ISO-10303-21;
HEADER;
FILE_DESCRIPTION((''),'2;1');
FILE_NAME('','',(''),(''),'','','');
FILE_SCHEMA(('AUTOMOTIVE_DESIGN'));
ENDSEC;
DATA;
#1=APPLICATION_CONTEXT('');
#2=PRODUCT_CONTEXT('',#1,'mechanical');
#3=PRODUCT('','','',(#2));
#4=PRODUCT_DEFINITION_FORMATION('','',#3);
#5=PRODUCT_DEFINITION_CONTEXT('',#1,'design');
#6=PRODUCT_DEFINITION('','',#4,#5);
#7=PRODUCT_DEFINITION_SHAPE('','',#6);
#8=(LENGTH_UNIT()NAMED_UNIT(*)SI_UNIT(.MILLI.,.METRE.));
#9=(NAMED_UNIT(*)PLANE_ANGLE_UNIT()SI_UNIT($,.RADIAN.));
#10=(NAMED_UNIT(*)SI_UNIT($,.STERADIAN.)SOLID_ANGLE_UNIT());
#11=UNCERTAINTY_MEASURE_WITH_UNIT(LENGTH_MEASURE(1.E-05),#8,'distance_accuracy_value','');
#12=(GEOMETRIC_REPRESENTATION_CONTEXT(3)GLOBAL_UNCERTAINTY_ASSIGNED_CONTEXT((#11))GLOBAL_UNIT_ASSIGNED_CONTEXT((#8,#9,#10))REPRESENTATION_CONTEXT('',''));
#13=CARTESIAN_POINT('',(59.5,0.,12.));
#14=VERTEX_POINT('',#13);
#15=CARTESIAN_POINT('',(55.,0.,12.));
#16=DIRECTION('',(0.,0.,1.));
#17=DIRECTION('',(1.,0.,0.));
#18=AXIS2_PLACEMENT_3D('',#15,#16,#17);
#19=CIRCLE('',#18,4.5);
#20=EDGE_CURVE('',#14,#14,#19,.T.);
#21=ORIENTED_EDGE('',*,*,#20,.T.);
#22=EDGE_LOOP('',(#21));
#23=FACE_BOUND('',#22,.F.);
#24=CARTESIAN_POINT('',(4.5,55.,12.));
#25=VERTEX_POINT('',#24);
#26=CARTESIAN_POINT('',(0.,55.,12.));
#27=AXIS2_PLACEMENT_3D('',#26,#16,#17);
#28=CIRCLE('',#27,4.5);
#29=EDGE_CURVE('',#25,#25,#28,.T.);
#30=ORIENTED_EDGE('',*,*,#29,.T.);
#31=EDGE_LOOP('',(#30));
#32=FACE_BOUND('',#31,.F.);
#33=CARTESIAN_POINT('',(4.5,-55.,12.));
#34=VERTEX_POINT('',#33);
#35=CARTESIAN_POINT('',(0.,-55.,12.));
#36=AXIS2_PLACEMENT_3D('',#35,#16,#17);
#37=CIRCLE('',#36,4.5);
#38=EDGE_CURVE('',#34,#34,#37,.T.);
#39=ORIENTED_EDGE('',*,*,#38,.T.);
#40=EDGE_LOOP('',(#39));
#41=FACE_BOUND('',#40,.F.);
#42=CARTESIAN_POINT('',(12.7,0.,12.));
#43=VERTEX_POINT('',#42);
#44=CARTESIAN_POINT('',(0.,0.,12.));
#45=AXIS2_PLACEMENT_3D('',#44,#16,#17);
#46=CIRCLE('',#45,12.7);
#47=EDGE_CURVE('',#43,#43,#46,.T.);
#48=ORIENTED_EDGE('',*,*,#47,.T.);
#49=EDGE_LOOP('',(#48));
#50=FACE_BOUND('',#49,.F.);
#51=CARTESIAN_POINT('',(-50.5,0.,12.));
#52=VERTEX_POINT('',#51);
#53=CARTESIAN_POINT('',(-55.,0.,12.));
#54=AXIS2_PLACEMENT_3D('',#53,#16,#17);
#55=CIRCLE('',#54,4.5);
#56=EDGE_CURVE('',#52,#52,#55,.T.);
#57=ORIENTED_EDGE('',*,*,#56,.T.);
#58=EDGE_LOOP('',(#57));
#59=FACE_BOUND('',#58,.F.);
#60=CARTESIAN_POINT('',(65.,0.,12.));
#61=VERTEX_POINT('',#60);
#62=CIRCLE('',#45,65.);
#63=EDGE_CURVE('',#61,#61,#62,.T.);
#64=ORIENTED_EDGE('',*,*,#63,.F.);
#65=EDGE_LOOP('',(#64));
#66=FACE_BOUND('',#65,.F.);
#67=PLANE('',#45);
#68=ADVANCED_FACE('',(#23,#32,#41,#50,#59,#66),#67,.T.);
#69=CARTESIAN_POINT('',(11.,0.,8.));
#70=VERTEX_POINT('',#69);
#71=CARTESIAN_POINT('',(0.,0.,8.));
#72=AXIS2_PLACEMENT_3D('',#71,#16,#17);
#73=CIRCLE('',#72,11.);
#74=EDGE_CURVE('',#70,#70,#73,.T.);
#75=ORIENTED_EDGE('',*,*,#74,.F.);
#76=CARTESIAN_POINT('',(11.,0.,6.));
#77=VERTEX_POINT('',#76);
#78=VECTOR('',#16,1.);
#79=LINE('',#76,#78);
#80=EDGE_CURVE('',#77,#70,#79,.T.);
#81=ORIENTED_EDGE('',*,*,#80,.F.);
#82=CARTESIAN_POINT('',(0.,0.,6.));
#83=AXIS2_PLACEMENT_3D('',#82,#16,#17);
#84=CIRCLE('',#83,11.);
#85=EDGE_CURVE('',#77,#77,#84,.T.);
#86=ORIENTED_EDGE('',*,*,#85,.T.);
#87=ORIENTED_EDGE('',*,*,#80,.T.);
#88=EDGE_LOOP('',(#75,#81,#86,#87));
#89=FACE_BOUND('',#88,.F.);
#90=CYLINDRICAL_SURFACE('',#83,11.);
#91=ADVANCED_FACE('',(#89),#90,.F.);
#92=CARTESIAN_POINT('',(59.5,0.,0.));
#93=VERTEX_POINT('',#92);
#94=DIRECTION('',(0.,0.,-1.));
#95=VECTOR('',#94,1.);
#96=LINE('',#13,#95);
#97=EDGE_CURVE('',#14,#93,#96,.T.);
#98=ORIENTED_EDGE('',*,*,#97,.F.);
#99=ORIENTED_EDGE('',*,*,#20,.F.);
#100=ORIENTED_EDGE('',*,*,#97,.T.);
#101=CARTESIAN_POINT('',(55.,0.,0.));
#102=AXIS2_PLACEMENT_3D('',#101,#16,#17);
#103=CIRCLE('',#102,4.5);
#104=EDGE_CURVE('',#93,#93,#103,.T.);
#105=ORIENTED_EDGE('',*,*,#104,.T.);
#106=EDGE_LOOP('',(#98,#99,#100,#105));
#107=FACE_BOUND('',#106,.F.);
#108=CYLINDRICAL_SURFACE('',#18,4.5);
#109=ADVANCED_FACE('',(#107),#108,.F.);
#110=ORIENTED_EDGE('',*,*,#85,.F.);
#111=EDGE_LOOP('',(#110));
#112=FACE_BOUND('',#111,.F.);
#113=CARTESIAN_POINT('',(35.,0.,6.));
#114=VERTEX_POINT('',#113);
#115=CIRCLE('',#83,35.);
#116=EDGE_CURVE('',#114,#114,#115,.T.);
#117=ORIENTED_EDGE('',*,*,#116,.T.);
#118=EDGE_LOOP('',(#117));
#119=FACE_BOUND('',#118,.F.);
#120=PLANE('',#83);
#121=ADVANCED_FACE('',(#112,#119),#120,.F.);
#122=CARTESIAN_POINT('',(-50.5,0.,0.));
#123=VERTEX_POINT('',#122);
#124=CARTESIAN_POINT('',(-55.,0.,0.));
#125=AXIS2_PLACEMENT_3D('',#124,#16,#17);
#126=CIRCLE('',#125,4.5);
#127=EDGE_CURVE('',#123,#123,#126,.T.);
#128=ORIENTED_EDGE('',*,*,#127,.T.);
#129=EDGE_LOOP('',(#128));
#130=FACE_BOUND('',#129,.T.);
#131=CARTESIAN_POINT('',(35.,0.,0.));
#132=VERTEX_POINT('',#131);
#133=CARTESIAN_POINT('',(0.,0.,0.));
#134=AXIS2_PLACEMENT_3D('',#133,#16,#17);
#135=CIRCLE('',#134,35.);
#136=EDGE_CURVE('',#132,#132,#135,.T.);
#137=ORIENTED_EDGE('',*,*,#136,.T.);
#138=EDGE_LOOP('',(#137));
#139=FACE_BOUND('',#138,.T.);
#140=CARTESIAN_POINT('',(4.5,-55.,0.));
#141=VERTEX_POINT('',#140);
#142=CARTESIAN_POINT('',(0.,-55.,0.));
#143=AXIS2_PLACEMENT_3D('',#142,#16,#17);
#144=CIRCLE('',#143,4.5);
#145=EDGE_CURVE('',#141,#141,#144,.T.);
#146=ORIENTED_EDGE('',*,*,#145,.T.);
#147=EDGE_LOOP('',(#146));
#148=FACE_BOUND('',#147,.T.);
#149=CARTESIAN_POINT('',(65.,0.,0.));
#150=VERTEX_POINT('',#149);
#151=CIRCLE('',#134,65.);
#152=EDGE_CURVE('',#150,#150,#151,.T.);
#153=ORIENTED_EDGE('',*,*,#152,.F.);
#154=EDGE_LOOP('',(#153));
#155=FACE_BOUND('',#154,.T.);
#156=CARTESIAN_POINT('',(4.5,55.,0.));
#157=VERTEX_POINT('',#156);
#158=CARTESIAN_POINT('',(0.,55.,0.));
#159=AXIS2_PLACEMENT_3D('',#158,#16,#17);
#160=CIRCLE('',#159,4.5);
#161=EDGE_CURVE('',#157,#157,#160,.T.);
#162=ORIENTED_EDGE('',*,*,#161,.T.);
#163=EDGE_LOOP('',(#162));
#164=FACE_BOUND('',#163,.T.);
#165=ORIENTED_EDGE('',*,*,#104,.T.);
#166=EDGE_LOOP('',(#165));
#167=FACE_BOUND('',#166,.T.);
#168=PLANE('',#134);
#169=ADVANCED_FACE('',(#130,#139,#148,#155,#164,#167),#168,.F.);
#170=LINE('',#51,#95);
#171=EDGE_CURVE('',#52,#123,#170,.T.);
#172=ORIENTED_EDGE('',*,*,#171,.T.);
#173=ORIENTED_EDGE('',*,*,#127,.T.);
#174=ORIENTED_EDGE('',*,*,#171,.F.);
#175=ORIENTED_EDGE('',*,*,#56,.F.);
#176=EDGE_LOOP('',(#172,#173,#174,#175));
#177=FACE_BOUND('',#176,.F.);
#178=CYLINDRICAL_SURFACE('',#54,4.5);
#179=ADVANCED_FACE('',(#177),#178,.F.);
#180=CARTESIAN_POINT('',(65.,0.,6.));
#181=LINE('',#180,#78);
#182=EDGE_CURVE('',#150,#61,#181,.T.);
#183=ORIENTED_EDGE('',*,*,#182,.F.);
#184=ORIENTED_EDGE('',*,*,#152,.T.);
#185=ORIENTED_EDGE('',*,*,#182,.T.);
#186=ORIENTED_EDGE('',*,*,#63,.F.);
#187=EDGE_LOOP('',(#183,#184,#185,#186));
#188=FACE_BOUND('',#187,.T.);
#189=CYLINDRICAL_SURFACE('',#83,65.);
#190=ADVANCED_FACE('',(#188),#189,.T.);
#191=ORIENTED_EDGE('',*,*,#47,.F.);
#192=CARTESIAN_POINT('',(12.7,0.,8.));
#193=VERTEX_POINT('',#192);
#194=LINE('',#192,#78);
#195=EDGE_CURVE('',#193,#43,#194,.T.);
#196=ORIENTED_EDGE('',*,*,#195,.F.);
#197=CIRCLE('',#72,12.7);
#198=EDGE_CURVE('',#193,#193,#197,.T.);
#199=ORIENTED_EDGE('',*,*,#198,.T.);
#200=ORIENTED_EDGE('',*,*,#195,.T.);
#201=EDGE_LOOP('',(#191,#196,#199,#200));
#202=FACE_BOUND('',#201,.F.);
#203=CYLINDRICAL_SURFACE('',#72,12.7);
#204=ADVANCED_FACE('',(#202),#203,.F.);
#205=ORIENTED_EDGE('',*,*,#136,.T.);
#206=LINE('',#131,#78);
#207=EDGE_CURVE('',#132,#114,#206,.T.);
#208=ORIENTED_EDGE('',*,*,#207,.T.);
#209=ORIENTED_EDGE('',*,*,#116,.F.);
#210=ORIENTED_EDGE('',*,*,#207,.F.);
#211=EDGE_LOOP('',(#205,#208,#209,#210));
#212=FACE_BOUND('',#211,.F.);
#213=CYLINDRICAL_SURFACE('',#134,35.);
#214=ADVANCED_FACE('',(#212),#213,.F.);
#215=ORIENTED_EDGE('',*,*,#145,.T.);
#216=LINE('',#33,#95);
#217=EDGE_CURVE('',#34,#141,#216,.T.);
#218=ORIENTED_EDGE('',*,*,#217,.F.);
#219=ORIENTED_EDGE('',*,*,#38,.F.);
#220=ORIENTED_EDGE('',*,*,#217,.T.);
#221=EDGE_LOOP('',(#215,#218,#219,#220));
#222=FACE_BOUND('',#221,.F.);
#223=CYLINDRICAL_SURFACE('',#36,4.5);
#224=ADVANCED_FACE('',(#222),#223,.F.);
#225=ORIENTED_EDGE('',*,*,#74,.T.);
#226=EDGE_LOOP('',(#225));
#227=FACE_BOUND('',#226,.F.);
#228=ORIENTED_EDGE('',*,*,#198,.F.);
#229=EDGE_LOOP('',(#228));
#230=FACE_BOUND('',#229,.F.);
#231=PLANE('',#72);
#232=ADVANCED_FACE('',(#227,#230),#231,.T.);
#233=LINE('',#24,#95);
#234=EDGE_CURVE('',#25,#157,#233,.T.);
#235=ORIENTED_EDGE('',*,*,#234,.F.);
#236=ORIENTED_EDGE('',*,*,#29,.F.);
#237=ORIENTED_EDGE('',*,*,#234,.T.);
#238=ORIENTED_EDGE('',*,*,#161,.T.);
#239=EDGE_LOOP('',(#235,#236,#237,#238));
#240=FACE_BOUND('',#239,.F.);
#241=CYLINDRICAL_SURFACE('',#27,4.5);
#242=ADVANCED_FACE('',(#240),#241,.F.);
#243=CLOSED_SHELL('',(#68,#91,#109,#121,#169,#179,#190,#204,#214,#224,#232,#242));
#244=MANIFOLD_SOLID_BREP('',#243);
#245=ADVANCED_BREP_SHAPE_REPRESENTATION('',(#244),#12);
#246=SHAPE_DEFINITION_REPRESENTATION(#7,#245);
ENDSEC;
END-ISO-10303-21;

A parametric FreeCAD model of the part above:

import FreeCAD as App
import Part
import Sketcher

doc = App.newDocument("Part")
body = doc.addObject("PartDesign::Body", "Body")

# Sketch on XZ plane
sketch1 = body.newObject("Sketcher::SketchObject", "Sketch")
sketch1.AttachmentSupport = (doc.getObject("XZ_Plane"), [""])
sketch1.MapMode = "FlatFace"
sketch1.addGeometry([
    Part.LineSegment(App.Vector(0, 12, 0), App.Vector(0, 0, 0)),
    Part.LineSegment(App.Vector(0, 0, 0), App.Vector(65, 0, 0)),
    Part.LineSegment(App.Vector(65, 0, 0), App.Vector(65, 12, 0)),
    Part.LineSegment(App.Vector(65, 12, 0), App.Vector(0, 12, 0)),
], False)
sketch1.addConstraint([
    Sketcher.Constraint("Coincident", 0, 2, 1, 1),
    Sketcher.Constraint("Coincident", 1, 2, 2, 1),
    Sketcher.Constraint("Coincident", 2, 2, 3, 1),
    Sketcher.Constraint("Coincident", 3, 2, 0, 1),
    Sketcher.Constraint("Vertical", 0),
    Sketcher.Constraint("Horizontal", 1),
    Sketcher.Constraint("Vertical", 2),
    Sketcher.Constraint("Horizontal", 3),
    Sketcher.Constraint("Coincident", 0, 2, -1, 1),
    Sketcher.Constraint("DistanceX", 1, 1, 1, 2, 65.0),
    Sketcher.Constraint("DistanceY", 0, 2, 0, 1, 12.0),
])
revolution = body.newObject("PartDesign::Revolution", "Revolution")
revolution.Profile = sketch1
revolution.ReferenceAxis = (sketch1, ["V_Axis"])
revolution.Angle = 360

# Sketch on XZ plane
sketch2 = body.newObject("Sketcher::SketchObject", "Sketch001")
sketch2.AttachmentSupport = (doc.getObject("XZ_Plane"), [""])
sketch2.MapMode = "FlatFace"
sketch2.addGeometry([
    Part.LineSegment(App.Vector(0, 12, 0), App.Vector(0, 0, 0)),  # 0
    Part.LineSegment(App.Vector(0, 0, 0), App.Vector(35, 0, 0)),  # 1
    Part.LineSegment(App.Vector(35, 0, 0), App.Vector(35, 6, 0)),  # 2
    Part.LineSegment(App.Vector(35, 6, 0), App.Vector(11, 6, 0)),  # 3
    Part.LineSegment(App.Vector(11, 6, 0), App.Vector(11, 8, 0)),  # 4
    Part.LineSegment(App.Vector(11, 8, 0), App.Vector(12.7, 8, 0)),  # 5
    Part.LineSegment(App.Vector(12.7, 8, 0), App.Vector(12.7, 12, 0)),  # 6
    Part.LineSegment(App.Vector(12.7, 12, 0), App.Vector(0, 12, 0)),  # 7
], False)
sketch2.addConstraint([
    Sketcher.Constraint("Coincident", 0, 2, 1, 1),
    Sketcher.Constraint("Coincident", 1, 2, 2, 1),
    Sketcher.Constraint("Coincident", 2, 2, 3, 1),
    Sketcher.Constraint("Coincident", 3, 2, 4, 1),
    Sketcher.Constraint("Coincident", 4, 2, 5, 1),
    Sketcher.Constraint("Coincident", 5, 2, 6, 1),
    Sketcher.Constraint("Coincident", 6, 2, 7, 1),
    Sketcher.Constraint("Coincident", 7, 2, 0, 1),
    Sketcher.Constraint("Vertical", 0),
    Sketcher.Constraint("Horizontal", 1),
    Sketcher.Constraint("Vertical", 2),
    Sketcher.Constraint("Horizontal", 3),
    Sketcher.Constraint("Vertical", 4),
    Sketcher.Constraint("Horizontal", 5),
    Sketcher.Constraint("Vertical", 6),
    Sketcher.Constraint("Horizontal", 7),
    Sketcher.Constraint("Coincident", 0, 2, -1, 1),
    Sketcher.Constraint("DistanceX", 1, 1, 1, 2, 35.0),
    Sketcher.Constraint("DistanceX", 3, 2, 3, 1, 24.0),
    Sketcher.Constraint("DistanceY", 0, 2, 0, 1, 12.0),
    Sketcher.Constraint("DistanceY", 2, 1, 2, 2, 6.0),
    Sketcher.Constraint("DistanceY", 4, 1, 4, 2, 2.0),
    Sketcher.Constraint("DistanceX", 5, 1, 5, 2, 1.7),
])
groove = body.newObject("PartDesign::Groove", "Groove")
groove.Profile = sketch2
groove.ReferenceAxis = (sketch2, ["V_Axis"])
groove.Angle = 360

# Sketch on XY plane
sketch3 = body.newObject("Sketcher::SketchObject", "Sketch002")
sketch3.AttachmentSupport = (doc.getObject("XY_Plane"), [""])
sketch3.MapMode = "FlatFace"
sketch3.AttachmentOffset = App.Placement(App.Vector(0, 0, 12), App.Rotation())
sketch3.addGeometry([
    Part.Circle(App.Vector(55, 0, 0), App.Vector(0, 0, 1), 4.5),
    Part.Circle(App.Vector(0, 55, 0), App.Vector(0, 0, 1), 4.5),
    Part.Circle(App.Vector(-55, 0, 0), App.Vector(0, 0, 1), 4.5),
    Part.Circle(App.Vector(0, -55, 0), App.Vector(0, 0, 1), 4.5),
], False)
sketch3.addConstraint([
    Sketcher.Constraint("Equal", 0, 1),
    Sketcher.Constraint("Equal", 1, 2),
    Sketcher.Constraint("Equal", 2, 3),
    Sketcher.Constraint("Symmetric", 0, 3, 2, 3, -1, 1),
    Sketcher.Constraint("Symmetric", 1, 3, 3, 3, -1, 1),
    Sketcher.Constraint("PointOnObject", 0, 3, -1),
    Sketcher.Constraint("PointOnObject", 1, 3, -2),
    Sketcher.Constraint("Diameter", 0, 9.0),
    Sketcher.Constraint("DistanceX", -1, 1, 0, 3, 55.0),
    Sketcher.Constraint("DistanceY", -1, 1, 1, 3, 55.0),
])
pocket1 = body.newObject("PartDesign::Pocket", "Pocket")
pocket1.Profile = sketch3
pocket1.Type = "ThroughAll"

doc.recompute()
